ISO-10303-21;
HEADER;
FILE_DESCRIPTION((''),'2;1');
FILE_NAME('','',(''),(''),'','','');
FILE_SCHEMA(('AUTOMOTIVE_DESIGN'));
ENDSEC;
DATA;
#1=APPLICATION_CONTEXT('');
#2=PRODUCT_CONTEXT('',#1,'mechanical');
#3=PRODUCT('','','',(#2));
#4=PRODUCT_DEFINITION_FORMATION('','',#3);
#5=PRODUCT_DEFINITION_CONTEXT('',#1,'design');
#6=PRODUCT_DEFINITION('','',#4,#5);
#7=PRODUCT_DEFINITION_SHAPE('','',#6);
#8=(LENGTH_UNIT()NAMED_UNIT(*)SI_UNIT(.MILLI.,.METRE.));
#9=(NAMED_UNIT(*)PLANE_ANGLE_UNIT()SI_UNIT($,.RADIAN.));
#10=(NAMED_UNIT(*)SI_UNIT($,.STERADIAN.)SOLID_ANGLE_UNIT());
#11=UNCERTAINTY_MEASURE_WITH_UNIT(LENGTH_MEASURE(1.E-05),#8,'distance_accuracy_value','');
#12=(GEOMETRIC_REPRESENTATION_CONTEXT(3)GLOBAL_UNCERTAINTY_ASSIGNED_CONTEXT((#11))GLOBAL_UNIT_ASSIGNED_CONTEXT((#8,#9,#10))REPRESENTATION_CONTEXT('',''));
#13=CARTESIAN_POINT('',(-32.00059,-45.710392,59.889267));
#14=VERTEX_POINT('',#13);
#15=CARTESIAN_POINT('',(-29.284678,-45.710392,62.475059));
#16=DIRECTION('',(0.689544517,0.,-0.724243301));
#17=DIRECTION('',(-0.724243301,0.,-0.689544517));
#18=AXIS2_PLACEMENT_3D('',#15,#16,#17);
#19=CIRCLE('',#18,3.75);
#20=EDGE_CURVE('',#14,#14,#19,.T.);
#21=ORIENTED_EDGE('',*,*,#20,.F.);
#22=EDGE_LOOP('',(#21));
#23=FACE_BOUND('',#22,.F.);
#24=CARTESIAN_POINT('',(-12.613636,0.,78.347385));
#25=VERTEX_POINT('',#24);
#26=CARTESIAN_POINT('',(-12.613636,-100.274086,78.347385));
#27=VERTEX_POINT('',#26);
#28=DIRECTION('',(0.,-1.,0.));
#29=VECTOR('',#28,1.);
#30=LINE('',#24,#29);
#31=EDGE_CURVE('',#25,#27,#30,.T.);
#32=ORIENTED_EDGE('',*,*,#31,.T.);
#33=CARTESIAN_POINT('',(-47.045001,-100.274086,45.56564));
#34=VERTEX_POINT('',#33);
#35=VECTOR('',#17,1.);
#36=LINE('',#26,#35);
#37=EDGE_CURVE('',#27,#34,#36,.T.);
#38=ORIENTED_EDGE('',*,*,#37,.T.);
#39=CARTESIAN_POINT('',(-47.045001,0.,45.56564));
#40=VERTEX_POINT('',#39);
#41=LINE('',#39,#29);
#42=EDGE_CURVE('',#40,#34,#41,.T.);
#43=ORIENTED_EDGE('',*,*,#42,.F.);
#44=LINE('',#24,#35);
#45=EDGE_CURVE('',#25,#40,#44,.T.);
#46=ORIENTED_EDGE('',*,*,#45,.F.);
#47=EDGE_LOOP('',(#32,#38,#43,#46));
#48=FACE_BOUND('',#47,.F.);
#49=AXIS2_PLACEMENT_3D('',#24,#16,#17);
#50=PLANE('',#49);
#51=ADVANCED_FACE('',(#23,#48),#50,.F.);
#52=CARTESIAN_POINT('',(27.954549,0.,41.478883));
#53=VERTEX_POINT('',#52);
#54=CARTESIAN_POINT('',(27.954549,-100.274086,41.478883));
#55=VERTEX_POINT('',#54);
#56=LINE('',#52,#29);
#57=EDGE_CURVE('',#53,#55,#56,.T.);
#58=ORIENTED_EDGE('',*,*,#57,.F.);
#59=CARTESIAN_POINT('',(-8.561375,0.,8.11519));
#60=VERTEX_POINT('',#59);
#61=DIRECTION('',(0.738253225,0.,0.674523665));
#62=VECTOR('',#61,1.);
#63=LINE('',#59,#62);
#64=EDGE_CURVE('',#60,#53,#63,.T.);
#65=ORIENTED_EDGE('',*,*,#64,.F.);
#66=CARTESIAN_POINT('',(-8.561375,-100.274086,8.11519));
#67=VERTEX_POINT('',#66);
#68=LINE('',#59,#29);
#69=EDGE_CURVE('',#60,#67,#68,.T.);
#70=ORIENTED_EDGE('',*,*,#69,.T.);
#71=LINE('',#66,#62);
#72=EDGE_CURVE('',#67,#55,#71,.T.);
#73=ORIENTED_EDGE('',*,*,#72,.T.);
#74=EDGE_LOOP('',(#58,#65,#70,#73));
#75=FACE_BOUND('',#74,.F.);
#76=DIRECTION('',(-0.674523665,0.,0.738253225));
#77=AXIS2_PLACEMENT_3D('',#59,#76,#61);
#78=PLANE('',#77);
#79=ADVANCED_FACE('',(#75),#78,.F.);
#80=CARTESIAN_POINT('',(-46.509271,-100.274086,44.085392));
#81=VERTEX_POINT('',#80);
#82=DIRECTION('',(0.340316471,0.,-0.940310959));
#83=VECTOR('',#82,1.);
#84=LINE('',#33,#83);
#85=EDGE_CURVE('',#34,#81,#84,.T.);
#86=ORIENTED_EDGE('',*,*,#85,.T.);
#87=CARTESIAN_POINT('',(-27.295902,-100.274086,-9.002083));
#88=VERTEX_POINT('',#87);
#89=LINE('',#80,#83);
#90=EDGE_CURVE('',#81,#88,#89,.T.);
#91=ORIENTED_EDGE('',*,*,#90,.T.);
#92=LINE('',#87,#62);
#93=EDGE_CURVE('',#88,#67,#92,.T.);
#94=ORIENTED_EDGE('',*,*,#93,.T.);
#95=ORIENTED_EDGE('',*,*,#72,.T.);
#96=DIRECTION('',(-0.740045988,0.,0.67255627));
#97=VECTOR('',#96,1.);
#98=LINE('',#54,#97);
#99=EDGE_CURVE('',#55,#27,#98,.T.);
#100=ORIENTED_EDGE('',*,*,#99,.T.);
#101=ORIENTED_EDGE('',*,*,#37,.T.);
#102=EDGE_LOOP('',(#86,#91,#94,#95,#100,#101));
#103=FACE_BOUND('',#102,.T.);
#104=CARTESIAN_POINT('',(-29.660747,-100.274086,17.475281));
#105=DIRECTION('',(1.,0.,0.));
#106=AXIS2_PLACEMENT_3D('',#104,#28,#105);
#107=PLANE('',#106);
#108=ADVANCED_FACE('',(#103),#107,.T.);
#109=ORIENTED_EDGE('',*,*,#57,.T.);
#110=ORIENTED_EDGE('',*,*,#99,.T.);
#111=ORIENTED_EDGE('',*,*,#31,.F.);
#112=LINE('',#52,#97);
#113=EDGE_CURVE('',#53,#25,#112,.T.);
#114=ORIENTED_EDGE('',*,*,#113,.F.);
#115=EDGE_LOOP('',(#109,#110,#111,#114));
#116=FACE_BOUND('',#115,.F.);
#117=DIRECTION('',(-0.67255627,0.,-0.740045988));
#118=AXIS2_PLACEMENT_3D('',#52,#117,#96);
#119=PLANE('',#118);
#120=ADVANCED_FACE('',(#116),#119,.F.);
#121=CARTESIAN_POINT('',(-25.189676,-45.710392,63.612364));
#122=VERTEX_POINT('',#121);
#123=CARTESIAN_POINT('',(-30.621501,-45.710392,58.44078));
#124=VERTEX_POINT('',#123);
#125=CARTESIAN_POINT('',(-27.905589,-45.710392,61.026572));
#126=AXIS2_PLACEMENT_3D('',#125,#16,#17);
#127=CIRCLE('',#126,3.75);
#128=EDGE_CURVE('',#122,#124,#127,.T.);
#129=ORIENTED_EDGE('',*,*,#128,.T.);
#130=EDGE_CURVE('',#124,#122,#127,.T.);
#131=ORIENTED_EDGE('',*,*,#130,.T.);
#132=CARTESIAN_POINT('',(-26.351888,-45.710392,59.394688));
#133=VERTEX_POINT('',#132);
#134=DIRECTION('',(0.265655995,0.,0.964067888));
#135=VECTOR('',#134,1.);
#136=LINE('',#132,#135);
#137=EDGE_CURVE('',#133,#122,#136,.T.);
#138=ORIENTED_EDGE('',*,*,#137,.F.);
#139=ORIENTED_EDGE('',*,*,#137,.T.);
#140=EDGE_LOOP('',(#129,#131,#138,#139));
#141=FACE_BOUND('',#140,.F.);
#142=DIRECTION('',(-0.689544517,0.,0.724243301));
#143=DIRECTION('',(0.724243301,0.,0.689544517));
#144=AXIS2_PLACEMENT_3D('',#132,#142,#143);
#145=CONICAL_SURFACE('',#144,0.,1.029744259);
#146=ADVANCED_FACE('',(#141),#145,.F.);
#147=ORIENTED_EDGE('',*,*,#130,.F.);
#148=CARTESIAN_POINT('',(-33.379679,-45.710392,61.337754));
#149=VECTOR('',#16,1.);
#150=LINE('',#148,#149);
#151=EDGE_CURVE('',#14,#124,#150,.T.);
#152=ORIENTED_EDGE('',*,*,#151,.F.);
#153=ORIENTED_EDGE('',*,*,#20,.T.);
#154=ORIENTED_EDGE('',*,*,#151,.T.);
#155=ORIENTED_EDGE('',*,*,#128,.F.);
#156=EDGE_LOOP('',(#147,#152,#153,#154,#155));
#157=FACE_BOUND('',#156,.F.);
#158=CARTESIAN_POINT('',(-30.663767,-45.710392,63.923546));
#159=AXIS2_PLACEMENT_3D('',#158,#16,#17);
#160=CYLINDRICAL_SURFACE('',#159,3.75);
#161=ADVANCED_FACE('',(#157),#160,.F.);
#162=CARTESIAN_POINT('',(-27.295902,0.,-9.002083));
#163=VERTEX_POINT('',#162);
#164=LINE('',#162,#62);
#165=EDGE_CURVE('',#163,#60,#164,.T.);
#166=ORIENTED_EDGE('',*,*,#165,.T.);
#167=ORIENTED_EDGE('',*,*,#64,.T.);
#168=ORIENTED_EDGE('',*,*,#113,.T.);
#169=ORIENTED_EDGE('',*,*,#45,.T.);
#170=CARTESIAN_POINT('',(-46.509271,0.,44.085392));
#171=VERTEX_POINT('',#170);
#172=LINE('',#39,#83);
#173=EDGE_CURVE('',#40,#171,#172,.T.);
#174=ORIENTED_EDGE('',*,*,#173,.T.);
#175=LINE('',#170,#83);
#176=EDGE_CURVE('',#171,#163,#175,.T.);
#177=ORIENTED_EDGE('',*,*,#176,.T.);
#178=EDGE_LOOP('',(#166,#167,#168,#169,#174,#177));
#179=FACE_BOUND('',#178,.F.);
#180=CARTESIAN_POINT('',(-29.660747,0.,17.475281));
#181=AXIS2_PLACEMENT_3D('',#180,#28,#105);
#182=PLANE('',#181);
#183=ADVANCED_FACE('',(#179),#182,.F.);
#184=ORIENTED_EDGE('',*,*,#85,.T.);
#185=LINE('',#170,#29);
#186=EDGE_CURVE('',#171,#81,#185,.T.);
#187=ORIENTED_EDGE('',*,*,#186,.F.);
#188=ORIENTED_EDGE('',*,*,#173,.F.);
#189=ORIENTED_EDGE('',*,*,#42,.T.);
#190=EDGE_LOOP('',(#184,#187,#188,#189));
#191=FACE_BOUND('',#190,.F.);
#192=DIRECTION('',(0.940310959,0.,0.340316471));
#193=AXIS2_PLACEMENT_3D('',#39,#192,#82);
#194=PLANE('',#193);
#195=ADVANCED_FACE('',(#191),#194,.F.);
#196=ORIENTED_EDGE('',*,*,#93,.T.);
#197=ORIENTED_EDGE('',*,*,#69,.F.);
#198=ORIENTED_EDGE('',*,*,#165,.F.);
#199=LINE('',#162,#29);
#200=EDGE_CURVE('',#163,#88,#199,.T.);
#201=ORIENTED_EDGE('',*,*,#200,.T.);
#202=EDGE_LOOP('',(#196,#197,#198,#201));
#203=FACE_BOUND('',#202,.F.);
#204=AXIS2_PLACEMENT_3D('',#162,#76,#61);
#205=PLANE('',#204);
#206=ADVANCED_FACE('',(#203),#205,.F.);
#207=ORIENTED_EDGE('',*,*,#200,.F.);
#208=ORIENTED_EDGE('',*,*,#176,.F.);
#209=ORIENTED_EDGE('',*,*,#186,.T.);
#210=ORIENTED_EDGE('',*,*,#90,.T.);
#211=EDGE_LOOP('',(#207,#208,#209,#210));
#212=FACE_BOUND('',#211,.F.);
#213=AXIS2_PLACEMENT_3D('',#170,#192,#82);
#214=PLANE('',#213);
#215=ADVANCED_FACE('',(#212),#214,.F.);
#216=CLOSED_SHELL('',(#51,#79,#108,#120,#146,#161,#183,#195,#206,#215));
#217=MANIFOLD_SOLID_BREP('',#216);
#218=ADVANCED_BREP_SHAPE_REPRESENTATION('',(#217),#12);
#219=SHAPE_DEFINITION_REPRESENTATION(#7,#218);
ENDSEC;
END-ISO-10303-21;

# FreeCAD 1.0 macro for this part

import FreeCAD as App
import Part
import Sketcher

doc = App.newDocument("Part")
body = doc.addObject("PartDesign::Body", "Body")

sketch1 = body.newObject("Sketcher::SketchObject", "Sketch")
sketch1.AttachmentSupport = (doc.getObject("XZ_Plane"), [""])
sketch1.MapMode = "FlatFace"
sketch1.addGeometry(Part.LineSegment(App.Vector(-46.5, 44.1, 0), App.Vector(-27.3, -9, 0)), False)
sketch1.addGeometry(Part.LineSegment(App.Vector(-27.3, -9, 0), App.Vector(-8.6, 8.1, 0)), False)
sketch1.addGeometry(Part.LineSegment(App.Vector(-8.6, 8.1, 0), App.Vector(28, 41.5, 0)), False)
sketch1.addGeometry(Part.LineSegment(App.Vector(28, 41.5, 0), App.Vector(-12.6, 78.3, 0)), False)
sketch1.addGeometry(Part.LineSegment(App.Vector(-12.6, 78.3, 0), App.Vector(-47, 45.6, 0)), False)
sketch1.addGeometry(Part.LineSegment(App.Vector(-47, 45.6, 0), App.Vector(-46.5, 44.1, 0)), False)
sketch1.addConstraint(Sketcher.Constraint("Coincident", 0, 2, 1, 1))
sketch1.addConstraint(Sketcher.Constraint("Coincident", 1, 2, 2, 1))
sketch1.addConstraint(Sketcher.Constraint("Coincident", 2, 2, 3, 1))
sketch1.addConstraint(Sketcher.Constraint("Coincident", 3, 2, 4, 1))
sketch1.addConstraint(Sketcher.Constraint("Coincident", 4, 2, 5, 1))
sketch1.addConstraint(Sketcher.Constraint("Coincident", 5, 2, 0, 1))
sketch1.addConstraint(Sketcher.Constraint("Parallel", 1, 2))
sketch1.addConstraint(Sketcher.Constraint("Parallel", 0, 5))
sketch1.addConstraint(Sketcher.Constraint("DistanceX", 4, 2, -1, 1, 47.045001))
sketch1.addConstraint(Sketcher.Constraint("Distance", 2, 49.462599))
sketch1.addConstraint(Sketcher.Constraint("DistanceX", 0, 2, -1, 1, 27.295902))
sketch1.addConstraint(Sketcher.Constraint("DistanceY", 2, 2, 3, 2, 36.868501))
sketch1.addConstraint(Sketcher.Constraint("Distance", 0, 56.457361))
sketch1.addConstraint(Sketcher.Constraint("Distance", 1, 25.37683))
sketch1.addConstraint(Sketcher.Constraint("Distance", 4, 47.541158))
sketch1.addConstraint(Sketcher.Constraint("Distance", 5, 1.574211))
sketch1.addConstraint(Sketcher.Constraint("DistanceY", -1, 1, 1, 2, 8.11519))
sketch1.addConstraint(Sketcher.Constraint("DistanceX", -1, 1, 2, 2, 27.954549))
pad1 = body.newObject("PartDesign::Pad", "Pad")
pad1.Profile = sketch1
pad1.Length = 100.274086

sketch2 = body.newObject("Sketcher::SketchObject", "Sketch001")
sketch2.Placement = App.Placement(App.Vector(-45.123953, 0, 47.39465), App.Rotation(App.Vector(0.724243301, 0, 0.689544517), App.Vector(0, 1, 0), App.Vector(-0.689544517, 0, 0.724243301), "ZXY"))
sketch2.addGeometry(Part.Circle(App.Vector(21.9, -45.7, 0), App.Vector(0, 0, 1), 3.8), False)
sketch2.addConstraint(Sketcher.Constraint("Diameter", 0, 7.5))
sketch2.addConstraint(Sketcher.Constraint("DistanceX", -1, 1, 0, 3, 21.870103))
sketch2.addConstraint(Sketcher.Constraint("DistanceY", 0, 3, -1, 1, 45.710392))
doc.recompute()
hole = body.newObject("PartDesign::Hole", "Hole")
hole.Profile = sketch2
hole.ThreadType = "None"
hole.Diameter = 7.5
hole.DepthType = "Dimension"
hole.Depth = 2
hole.DrillPoint = "Angled"
hole.DrillPointAngle = 118

doc.recompute()
